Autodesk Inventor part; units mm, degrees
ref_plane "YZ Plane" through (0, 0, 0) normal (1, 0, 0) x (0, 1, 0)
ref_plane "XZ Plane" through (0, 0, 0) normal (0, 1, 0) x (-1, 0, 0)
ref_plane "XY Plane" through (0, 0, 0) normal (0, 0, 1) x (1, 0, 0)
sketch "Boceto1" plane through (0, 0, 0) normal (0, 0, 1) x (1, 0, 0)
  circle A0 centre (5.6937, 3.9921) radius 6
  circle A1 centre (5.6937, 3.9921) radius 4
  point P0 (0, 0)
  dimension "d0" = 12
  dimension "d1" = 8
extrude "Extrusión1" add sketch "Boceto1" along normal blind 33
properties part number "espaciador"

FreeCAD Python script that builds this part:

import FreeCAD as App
import Part
import Sketcher
from FreeCAD import Vector
Q = App.Units.Quantity

doc = App.newDocument("Part")
body = doc.addObject("PartDesign::Body", "Body")

sketch1 = body.newObject("Sketcher::SketchObject", "Sketch")
sketch1.AttachmentSupport = (doc.getObject("XY_Plane"), [""])
sketch1.MapMode = "FlatFace"
sketch1.addGeometry([
    Part.Circle(Vector(5.7, 4, 0), Vector(0, 0, 1), 6),
    Part.Circle(Vector(5.7, 4, 0), Vector(0, 0, 1), 4),
], False)
sketch1.addConstraint([
    Sketcher.Constraint("Coincident", 1, 3, 0, 3),
    Sketcher.Constraint("Diameter", 0, Q("12 mm")),
    Sketcher.Constraint("Diameter", 1, Q("8 mm")),
    Sketcher.Constraint("DistanceY", -1, 1, 0, 3, Q("3.992 mm")),
    Sketcher.Constraint("DistanceX", -1, 1, 0, 3, Q("5.6937 mm")),
])
pad1 = body.newObject("PartDesign::Pad", "Pad")
pad1.Profile = sketch1
pad1.Length = 33

doc.recompute()
